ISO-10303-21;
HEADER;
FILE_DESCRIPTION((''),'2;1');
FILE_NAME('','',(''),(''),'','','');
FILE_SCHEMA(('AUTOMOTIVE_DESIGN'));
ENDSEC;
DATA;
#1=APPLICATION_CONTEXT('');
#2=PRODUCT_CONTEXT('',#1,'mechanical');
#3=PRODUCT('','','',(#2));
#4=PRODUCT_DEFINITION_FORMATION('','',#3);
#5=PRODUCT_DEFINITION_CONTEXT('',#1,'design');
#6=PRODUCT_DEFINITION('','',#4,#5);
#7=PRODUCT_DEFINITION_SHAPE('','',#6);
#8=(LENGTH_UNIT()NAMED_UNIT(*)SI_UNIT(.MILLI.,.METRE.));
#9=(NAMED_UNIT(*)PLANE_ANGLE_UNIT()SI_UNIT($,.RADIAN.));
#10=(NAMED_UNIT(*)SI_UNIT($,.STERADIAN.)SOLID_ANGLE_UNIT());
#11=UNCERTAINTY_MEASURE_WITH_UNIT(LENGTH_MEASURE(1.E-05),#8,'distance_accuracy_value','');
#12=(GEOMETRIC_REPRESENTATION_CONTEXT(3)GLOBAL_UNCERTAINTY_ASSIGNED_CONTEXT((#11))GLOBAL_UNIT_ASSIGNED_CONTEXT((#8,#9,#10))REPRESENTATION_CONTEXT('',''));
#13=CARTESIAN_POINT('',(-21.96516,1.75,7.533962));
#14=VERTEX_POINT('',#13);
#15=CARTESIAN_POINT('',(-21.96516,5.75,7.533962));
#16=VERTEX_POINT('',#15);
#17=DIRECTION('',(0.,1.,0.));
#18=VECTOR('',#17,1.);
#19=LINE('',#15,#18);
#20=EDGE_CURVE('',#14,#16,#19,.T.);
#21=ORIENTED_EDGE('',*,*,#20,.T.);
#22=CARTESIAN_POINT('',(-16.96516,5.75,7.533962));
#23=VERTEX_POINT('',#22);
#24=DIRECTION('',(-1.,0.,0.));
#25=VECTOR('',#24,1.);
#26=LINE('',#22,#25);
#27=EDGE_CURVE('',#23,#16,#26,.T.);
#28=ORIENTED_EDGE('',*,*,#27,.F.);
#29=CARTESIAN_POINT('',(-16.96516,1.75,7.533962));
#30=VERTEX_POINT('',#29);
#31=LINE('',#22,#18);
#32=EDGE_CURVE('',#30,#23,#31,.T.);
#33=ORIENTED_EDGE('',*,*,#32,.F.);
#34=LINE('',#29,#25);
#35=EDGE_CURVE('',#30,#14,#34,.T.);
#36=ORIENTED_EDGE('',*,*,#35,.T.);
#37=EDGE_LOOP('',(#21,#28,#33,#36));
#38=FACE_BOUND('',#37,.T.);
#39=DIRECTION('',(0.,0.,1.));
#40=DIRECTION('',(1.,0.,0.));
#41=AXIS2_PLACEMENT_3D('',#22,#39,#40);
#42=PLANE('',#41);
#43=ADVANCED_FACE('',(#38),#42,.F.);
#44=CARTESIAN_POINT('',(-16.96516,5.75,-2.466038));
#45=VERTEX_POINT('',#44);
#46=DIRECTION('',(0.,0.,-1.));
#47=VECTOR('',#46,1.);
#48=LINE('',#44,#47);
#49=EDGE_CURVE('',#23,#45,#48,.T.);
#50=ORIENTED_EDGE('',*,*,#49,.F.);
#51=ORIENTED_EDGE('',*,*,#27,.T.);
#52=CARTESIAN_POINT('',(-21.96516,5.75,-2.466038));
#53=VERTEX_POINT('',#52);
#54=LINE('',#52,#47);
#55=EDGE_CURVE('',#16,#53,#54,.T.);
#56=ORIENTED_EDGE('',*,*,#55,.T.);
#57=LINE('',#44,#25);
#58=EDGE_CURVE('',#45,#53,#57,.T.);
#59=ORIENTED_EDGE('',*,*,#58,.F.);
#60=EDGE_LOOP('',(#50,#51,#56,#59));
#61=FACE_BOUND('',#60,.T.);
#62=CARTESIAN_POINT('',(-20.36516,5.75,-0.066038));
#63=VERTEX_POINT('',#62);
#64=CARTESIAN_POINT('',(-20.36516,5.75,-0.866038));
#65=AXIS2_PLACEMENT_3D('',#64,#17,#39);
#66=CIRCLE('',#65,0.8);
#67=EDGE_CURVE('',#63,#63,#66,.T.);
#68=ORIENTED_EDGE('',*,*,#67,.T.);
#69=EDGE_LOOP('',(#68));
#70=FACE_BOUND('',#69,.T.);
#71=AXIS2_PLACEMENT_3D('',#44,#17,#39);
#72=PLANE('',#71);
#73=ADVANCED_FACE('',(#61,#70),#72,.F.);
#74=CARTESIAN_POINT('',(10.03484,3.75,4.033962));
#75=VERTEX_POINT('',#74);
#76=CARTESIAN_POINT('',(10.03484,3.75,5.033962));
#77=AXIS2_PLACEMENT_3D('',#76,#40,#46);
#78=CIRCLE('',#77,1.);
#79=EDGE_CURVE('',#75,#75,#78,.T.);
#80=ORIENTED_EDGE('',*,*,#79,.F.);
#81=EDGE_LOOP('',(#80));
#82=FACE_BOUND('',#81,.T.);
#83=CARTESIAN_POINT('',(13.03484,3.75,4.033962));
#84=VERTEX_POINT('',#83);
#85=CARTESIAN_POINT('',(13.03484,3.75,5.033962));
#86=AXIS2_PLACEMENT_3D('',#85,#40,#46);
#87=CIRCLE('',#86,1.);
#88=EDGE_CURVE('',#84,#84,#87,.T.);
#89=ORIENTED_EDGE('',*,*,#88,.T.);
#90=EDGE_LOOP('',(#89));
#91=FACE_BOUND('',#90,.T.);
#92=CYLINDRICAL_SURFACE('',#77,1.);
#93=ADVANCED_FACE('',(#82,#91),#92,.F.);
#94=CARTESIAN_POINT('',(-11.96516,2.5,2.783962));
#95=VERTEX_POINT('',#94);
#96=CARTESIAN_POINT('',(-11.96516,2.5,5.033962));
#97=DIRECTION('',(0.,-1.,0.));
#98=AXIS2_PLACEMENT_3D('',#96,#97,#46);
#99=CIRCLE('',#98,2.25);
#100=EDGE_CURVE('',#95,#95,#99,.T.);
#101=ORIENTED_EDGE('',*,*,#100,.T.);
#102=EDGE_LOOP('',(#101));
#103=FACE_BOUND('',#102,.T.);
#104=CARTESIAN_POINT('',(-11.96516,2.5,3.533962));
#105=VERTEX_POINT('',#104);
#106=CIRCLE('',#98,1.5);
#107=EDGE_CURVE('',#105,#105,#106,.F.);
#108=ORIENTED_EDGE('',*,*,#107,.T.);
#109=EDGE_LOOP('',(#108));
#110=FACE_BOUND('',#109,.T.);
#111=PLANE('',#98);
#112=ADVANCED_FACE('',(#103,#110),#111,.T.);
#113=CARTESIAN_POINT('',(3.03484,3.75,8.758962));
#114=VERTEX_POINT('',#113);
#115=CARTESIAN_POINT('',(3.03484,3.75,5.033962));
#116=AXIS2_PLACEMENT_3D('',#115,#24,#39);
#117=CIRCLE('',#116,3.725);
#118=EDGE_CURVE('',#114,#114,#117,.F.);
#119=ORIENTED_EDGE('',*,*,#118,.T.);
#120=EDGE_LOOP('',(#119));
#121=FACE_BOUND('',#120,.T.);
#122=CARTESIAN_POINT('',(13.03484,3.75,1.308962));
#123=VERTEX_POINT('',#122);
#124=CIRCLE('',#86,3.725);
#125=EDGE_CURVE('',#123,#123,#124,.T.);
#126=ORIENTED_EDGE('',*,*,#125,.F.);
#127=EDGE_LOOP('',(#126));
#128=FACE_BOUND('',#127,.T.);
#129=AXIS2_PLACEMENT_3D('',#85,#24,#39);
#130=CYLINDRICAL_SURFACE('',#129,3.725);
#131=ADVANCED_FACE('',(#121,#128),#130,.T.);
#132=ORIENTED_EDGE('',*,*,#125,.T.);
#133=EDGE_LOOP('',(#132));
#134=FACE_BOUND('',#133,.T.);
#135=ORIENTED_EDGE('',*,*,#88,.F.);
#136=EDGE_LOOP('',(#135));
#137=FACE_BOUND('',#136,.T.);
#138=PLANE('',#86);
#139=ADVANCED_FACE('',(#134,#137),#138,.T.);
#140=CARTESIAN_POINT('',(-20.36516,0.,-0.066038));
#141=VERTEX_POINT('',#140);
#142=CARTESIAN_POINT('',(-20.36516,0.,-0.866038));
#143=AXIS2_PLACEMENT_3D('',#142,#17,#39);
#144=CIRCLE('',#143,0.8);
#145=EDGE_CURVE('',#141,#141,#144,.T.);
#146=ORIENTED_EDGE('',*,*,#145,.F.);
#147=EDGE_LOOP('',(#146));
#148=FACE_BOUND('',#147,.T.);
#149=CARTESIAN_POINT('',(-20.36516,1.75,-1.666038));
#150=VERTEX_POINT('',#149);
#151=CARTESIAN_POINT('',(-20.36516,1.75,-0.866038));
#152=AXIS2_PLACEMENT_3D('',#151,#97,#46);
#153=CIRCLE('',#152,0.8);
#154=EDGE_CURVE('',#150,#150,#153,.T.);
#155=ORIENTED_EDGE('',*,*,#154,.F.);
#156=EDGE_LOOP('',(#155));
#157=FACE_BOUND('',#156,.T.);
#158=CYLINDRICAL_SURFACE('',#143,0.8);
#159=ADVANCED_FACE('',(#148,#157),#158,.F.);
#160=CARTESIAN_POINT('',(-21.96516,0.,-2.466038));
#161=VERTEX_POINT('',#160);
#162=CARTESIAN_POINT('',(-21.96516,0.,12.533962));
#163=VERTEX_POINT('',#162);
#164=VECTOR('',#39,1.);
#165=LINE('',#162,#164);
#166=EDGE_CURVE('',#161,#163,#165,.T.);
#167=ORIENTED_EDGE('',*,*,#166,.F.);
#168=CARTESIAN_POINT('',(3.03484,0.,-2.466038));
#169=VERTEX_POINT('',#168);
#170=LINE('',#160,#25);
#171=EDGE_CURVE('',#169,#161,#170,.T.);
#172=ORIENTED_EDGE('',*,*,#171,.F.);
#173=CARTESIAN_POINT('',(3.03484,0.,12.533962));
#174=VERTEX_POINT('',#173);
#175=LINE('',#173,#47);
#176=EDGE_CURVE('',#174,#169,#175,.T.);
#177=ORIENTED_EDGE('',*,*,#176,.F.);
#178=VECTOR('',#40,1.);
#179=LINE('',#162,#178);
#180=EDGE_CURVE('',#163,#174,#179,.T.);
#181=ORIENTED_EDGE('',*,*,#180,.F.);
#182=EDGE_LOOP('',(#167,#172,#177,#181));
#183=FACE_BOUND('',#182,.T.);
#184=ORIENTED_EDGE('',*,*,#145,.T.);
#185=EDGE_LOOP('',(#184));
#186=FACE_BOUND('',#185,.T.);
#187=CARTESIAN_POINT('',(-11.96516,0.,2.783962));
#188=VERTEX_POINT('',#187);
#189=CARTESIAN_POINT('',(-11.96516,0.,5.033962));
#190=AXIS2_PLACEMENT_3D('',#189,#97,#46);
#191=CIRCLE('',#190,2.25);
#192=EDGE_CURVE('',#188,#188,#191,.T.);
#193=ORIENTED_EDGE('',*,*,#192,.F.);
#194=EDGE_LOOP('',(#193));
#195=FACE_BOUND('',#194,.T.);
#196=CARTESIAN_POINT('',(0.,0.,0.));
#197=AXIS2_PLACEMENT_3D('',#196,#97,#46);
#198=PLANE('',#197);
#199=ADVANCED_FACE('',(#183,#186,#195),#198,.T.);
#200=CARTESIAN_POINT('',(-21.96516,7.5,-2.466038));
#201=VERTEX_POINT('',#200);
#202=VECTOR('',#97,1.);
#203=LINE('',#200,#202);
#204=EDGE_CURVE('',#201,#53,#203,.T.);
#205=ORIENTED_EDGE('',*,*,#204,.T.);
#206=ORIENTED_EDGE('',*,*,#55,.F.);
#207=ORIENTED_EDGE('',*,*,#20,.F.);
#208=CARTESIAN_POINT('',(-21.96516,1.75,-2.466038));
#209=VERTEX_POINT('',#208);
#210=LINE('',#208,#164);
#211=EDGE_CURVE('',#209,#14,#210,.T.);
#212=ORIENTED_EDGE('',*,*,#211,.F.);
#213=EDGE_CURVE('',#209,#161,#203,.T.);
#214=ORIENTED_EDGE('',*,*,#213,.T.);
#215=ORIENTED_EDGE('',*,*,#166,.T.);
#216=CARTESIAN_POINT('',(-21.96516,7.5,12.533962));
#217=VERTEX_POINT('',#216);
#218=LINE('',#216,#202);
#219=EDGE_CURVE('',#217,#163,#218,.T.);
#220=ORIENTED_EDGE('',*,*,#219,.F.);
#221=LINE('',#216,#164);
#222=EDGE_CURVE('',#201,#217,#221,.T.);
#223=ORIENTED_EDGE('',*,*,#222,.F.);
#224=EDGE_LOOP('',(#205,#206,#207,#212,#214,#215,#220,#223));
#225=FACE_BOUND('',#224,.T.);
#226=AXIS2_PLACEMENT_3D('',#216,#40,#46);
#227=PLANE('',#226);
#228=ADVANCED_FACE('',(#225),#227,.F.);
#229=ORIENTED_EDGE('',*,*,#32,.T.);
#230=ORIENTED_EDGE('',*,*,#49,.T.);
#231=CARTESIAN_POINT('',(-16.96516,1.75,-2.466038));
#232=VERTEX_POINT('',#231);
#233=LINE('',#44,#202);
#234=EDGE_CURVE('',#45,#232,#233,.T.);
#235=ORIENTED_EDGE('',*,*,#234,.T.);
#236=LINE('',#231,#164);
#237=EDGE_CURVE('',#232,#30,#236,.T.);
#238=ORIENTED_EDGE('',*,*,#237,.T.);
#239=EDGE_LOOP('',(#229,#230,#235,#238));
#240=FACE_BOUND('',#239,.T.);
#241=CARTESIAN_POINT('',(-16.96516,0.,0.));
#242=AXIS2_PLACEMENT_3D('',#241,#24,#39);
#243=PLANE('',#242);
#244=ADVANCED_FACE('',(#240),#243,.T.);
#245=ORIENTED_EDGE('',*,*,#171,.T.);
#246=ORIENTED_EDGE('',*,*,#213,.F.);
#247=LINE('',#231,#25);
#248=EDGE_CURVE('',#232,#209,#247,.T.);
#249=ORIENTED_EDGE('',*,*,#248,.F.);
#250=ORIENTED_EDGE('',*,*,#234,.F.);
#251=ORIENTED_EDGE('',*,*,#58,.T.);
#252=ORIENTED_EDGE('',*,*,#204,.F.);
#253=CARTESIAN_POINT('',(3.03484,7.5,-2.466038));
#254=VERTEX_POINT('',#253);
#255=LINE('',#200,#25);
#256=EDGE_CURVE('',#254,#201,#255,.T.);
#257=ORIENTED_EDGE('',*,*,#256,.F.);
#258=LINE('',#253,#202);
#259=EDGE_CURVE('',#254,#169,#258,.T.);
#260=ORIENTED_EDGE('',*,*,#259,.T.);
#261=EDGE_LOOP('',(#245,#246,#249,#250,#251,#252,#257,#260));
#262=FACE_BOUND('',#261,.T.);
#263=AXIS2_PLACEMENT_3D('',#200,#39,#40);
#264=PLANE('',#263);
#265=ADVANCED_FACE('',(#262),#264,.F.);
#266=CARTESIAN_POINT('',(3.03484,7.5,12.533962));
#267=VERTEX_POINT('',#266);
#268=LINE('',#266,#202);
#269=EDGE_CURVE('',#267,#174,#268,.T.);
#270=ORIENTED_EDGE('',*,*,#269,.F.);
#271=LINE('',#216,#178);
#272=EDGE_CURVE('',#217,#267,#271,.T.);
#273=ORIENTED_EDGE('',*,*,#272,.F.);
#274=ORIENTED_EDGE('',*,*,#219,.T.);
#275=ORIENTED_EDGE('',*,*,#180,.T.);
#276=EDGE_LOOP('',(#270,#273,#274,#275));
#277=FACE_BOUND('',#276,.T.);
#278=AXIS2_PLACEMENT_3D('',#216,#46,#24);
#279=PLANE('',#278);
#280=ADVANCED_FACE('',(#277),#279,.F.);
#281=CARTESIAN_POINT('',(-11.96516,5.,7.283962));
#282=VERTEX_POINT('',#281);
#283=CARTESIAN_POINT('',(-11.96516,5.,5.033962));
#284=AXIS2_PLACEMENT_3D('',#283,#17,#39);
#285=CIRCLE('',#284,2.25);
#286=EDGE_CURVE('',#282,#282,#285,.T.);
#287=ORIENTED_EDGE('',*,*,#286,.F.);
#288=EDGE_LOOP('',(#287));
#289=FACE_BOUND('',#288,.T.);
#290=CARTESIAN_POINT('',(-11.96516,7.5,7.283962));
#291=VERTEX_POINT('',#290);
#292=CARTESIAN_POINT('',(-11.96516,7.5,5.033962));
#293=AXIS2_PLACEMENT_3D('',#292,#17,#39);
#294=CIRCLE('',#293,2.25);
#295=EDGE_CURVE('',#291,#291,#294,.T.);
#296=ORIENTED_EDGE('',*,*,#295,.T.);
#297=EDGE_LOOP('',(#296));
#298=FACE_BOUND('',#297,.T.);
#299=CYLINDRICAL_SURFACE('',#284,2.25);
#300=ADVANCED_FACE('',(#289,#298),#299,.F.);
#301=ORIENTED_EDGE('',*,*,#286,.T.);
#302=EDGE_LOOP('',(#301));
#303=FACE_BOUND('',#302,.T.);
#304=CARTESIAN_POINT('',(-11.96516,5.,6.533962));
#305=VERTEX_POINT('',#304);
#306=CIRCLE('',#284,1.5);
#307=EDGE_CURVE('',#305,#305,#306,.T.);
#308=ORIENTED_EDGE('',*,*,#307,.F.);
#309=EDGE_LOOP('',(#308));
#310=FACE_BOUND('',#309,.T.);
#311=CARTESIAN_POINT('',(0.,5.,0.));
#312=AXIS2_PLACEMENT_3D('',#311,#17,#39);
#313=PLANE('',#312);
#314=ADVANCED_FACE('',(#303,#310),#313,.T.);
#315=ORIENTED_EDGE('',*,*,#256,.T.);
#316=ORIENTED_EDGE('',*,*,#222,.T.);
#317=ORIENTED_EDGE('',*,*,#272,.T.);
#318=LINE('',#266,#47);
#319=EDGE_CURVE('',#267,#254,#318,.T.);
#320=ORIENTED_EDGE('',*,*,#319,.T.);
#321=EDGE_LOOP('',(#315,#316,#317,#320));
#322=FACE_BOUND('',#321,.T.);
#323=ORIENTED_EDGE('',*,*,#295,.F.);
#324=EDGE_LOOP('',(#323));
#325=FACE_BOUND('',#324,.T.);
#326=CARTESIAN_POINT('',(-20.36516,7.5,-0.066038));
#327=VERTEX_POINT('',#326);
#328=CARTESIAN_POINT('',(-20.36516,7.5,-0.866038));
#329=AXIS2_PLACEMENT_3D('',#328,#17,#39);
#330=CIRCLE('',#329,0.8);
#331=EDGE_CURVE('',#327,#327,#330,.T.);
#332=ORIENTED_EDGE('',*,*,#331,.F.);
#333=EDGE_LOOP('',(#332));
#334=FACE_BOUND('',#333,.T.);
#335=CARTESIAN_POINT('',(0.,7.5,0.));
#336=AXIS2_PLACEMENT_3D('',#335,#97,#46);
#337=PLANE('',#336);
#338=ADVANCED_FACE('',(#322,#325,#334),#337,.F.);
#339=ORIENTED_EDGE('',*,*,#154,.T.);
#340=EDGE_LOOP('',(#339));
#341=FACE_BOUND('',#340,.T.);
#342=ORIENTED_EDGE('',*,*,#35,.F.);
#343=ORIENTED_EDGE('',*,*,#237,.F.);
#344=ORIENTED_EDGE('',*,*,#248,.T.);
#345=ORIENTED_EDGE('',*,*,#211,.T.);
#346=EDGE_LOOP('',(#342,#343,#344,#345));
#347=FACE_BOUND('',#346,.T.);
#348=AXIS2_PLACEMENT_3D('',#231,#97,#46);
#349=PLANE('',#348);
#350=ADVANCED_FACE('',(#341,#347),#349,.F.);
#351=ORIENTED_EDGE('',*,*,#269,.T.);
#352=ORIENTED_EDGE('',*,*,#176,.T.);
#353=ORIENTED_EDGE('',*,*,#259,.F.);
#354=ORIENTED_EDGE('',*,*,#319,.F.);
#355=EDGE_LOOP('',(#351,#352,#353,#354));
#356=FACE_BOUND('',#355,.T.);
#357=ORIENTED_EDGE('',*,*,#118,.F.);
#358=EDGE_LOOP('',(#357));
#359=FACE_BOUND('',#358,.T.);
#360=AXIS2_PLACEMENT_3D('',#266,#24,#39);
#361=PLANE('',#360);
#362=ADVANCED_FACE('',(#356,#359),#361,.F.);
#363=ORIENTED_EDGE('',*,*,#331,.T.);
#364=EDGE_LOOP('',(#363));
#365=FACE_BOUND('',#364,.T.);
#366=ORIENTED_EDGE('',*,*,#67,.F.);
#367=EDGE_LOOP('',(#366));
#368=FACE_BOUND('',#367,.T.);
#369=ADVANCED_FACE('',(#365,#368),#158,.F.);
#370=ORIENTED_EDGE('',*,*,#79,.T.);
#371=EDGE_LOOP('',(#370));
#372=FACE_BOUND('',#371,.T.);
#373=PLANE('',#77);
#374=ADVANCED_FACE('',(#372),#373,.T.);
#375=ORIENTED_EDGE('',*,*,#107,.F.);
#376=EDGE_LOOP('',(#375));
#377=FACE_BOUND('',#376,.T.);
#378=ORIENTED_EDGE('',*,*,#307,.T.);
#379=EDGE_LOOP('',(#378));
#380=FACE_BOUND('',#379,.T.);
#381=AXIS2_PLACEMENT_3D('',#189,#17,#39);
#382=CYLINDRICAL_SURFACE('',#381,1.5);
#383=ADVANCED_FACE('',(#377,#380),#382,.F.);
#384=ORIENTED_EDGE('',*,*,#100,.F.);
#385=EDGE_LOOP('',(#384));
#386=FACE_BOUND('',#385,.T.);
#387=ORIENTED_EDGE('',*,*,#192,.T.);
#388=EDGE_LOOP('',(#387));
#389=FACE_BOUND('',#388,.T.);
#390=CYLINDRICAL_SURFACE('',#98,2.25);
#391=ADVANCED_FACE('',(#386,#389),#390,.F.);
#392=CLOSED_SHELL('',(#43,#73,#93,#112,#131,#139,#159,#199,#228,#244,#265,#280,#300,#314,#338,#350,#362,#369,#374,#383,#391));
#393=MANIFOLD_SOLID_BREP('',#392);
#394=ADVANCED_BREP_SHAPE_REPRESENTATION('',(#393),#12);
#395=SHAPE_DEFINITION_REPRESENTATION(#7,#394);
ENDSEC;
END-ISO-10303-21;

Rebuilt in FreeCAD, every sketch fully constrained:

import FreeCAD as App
import Part
import Sketcher


def add_polygon(sketch, points):
    """Adds a closed chain of lines whose ends are joined by coincident constraints."""
    first, n = sketch.GeometryCount, len(points)
    for a, b in zip(points, points[1:] + points[:1]):
        sketch.addGeometry(Part.LineSegment(App.Vector(*a, 0), App.Vector(*b, 0)), False)
    for i in range(n):
        sketch.addConstraint(Sketcher.Constraint("Coincident", first + i, 2, first + (i + 1) % n, 1))

doc = App.newDocument("Part")
body = doc.addObject("PartDesign::Body", "Body")

sketch1 = doc.addObject("Sketcher::SketchObject", "Sketch")
body.addObject(sketch1)
sketch1.AttachmentSupport = (doc.XZ_Plane, [""])
sketch1.MapMode = "FlatFace"
add_polygon(sketch1, [(-21.96516, -2.466038), (-21.96516, 12.533962), (3.03484, 12.533962), (3.03484, -2.466038)])
sketch1.addConstraint([
    Sketcher.Constraint("Vertical", 0),
    Sketcher.Constraint("Horizontal", 1),
    Sketcher.Constraint("Vertical", 2),
    Sketcher.Constraint("Horizontal", 3),
    Sketcher.Constraint("DistanceX", 1, 1, 1, 2, 25.0),
    Sketcher.Constraint("DistanceY", 0, 1, 0, 2, 15.0),
    Sketcher.Constraint("DistanceX", 0, 2, -1, 1, 21.96516),
    Sketcher.Constraint("DistanceY", -1, 1, 0, 2, 12.533962),
])
pad1 = doc.addObject("PartDesign::Pad", "Pad")
body.addObject(pad1)
pad1.Profile = sketch1
pad1.Length = 7.5
pad1.Reversed = True

sketch2 = doc.addObject("Sketcher::SketchObject", "Sketch001")
body.addObject(sketch2)
sketch2.AttachmentSupport = (doc.YZ_Plane, [""])
sketch2.MapMode = "FlatFace"
sketch2.AttachmentOffset = App.Placement(App.Vector(0, 0, 3.03484), App.Rotation())
sketch2.addGeometry(Part.Circle(App.Vector(3.75, 5.033962, 0), App.Vector(0, 0, 1), 3.725), False)
sketch2.addConstraint([
    Sketcher.Constraint("Diameter", 0, 7.45),
    Sketcher.Constraint("DistanceX", -1, 1, 0, 3, 3.75),
    Sketcher.Constraint("DistanceY", -1, 1, 0, 3, 5.033962),
])
pad2 = doc.addObject("PartDesign::Pad", "Pad001")
body.addObject(pad2)
pad2.Profile = sketch2
pad2.Length = 10

sketch3 = doc.addObject("Sketcher::SketchObject", "Sketch002")
body.addObject(sketch3)
sketch3.AttachmentSupport = (doc.YZ_Plane, [""])
sketch3.MapMode = "FlatFace"
sketch3.AttachmentOffset = App.Placement(App.Vector(0, 0, 13.03484), App.Rotation())
sketch3.addGeometry(Part.Circle(App.Vector(3.75, 5.033962, 0), App.Vector(0, 0, 1), 1), False)
sketch3.addConstraint([
    Sketcher.Constraint("Diameter", 0, 2.0),
    Sketcher.Constraint("DistanceX", -1, 1, 0, 3, 3.75),
    Sketcher.Constraint("DistanceY", -1, 1, 0, 3, 5.033962),
])
pocket1 = doc.addObject("PartDesign::Pocket", "Pocket")
body.addObject(pocket1)
pocket1.Profile = sketch3
pocket1.Length = 3

sketch4 = doc.addObject("Sketcher::SketchObject", "Sketch003")
body.addObject(sketch4)
sketch4.AttachmentSupport = (doc.YZ_Plane, [""])
sketch4.MapMode = "FlatFace"
sketch4.AttachmentOffset = App.Placement(App.Vector(0, 0, -21.96516), App.Rotation())
add_polygon(sketch4, [(5.75, -2.466038), (1.75, -2.466038), (1.75, 7.533962), (5.75, 7.533962)])
sketch4.addConstraint([
    Sketcher.Constraint("Horizontal", 0),
    Sketcher.Constraint("Vertical", 1),
    Sketcher.Constraint("Horizontal", 2),
    Sketcher.Constraint("Vertical", 3),
    Sketcher.Constraint("DistanceX", 0, 2, 0, 1, 4.0),
    Sketcher.Constraint("DistanceY", 1, 1, 1, 2, 10.0),
    Sketcher.Constraint("DistanceX", -1, 1, 0, 2, 1.75),
    Sketcher.Constraint("DistanceY", 0, 2, -1, 1, 2.466038),
])
pocket2 = doc.addObject("PartDesign::Pocket", "Pocket001")
body.addObject(pocket2)
pocket2.Profile = sketch4
pocket2.Length = 5
pocket2.Reversed = True

sketch5 = doc.addObject("Sketcher::SketchObject", "Sketch004")
body.addObject(sketch5)
sketch5.AttachmentSupport = (doc.XZ_Plane, [""])
sketch5.MapMode = "FlatFace"
sketch5.AttachmentOffset = App.Placement(App.Vector(0, 0, -7.5), App.Rotation())
sketch5.addGeometry(Part.Circle(App.Vector(-20.36516, -0.866038, 0), App.Vector(0, 0, 1), 0.8), False)
sketch5.addConstraint([
    Sketcher.Constraint("Diameter", 0, 1.6),
    Sketcher.Constraint("DistanceX", 0, 3, -1, 1, 20.36516),
    Sketcher.Constraint("DistanceY", 0, 3, -1, 1, 0.866038),
])
pocket3 = doc.addObject("PartDesign::Pocket", "Pocket002")
body.addObject(pocket3)
pocket3.Profile = sketch5
pocket3.Length = 7.5
pocket3.Reversed = True

sketch6 = doc.addObject("Sketcher::SketchObject", "Sketch005")
body.addObject(sketch6)
sketch6.AttachmentSupport = (doc.XZ_Plane, [""])
sketch6.MapMode = "FlatFace"
sketch6.AttachmentOffset = App.Placement(App.Vector(0, 0, -7.5), App.Rotation())
sketch6.addGeometry(Part.Circle(App.Vector(-11.96516, 5.033962, 0), App.Vector(0, 0, 1), 1.5), False)
sketch6.addConstraint([
    Sketcher.Constraint("Diameter", 0, 3.0),
    Sketcher.Constraint("DistanceX", 0, 3, -1, 1, 11.96516),
    Sketcher.Constraint("DistanceY", -1, 1, 0, 3, 5.033962),
])
pocket4 = doc.addObject("PartDesign::Pocket", "Pocket003")
body.addObject(pocket4)
pocket4.Profile = sketch6
pocket4.Length = 7.5
pocket4.Reversed = True

sketch7 = doc.addObject("Sketcher::SketchObject", "Sketch006")
body.addObject(sketch7)
sketch7.AttachmentSupport = (doc.XZ_Plane, [""])
sketch7.MapMode = "FlatFace"
sketch7.AttachmentOffset = App.Placement(App.Vector(0, 0, -7.5), App.Rotation())
sketch7.addGeometry([
    Part.Circle(App.Vector(-11.96516, 5.033962, 0), App.Vector(0, 0, 1), 2.25),
    Part.Circle(App.Vector(-11.96516, 5.033962, 0), App.Vector(0, 0, 1), 1.5),
], False)
sketch7.addConstraint([
    Sketcher.Constraint("Coincident", 1, 3, 0, 3),
    Sketcher.Constraint("Diameter", 1, 3.0),
    Sketcher.Constraint("Diameter", 0, 4.5),
    Sketcher.Constraint("DistanceX", 0, 3, -1, 1, 11.96516),
    Sketcher.Constraint("DistanceY", -1, 1, 0, 3, 5.033962),
])
pocket5 = doc.addObject("PartDesign::Pocket", "Pocket004")
body.addObject(pocket5)
pocket5.Profile = sketch7
pocket5.Length = 2.5
pocket5.Reversed = True

sketch8 = doc.addObject("Sketcher::SketchObject", "Sketch007")
body.addObject(sketch8)
sketch8.AttachmentSupport = (doc.XZ_Plane, [""])
sketch8.MapMode = "FlatFace"
sketch8.AttachmentOffset = App.Placement(App.Vector(0, 0, -2.5), App.Rotation())
sketch8.addGeometry(Part.Circle(App.Vector(-11.96516, 5.033962, 0), App.Vector(0, 0, 1), 2.25), False)
sketch8.addConstraint([
    Sketcher.Constraint("Diameter", 0, 4.5),
    Sketcher.Constraint("DistanceX", 0, 3, -1, 1, 11.96516),
    Sketcher.Constraint("DistanceY", -1, 1, 0, 3, 5.033962),
])
pocket6 = doc.addObject("PartDesign::Pocket", "Pocket005")
body.addObject(pocket6)
pocket6.Profile = sketch8
pocket6.Length = 2.5
pocket6.Reversed = True

doc.recompute()
